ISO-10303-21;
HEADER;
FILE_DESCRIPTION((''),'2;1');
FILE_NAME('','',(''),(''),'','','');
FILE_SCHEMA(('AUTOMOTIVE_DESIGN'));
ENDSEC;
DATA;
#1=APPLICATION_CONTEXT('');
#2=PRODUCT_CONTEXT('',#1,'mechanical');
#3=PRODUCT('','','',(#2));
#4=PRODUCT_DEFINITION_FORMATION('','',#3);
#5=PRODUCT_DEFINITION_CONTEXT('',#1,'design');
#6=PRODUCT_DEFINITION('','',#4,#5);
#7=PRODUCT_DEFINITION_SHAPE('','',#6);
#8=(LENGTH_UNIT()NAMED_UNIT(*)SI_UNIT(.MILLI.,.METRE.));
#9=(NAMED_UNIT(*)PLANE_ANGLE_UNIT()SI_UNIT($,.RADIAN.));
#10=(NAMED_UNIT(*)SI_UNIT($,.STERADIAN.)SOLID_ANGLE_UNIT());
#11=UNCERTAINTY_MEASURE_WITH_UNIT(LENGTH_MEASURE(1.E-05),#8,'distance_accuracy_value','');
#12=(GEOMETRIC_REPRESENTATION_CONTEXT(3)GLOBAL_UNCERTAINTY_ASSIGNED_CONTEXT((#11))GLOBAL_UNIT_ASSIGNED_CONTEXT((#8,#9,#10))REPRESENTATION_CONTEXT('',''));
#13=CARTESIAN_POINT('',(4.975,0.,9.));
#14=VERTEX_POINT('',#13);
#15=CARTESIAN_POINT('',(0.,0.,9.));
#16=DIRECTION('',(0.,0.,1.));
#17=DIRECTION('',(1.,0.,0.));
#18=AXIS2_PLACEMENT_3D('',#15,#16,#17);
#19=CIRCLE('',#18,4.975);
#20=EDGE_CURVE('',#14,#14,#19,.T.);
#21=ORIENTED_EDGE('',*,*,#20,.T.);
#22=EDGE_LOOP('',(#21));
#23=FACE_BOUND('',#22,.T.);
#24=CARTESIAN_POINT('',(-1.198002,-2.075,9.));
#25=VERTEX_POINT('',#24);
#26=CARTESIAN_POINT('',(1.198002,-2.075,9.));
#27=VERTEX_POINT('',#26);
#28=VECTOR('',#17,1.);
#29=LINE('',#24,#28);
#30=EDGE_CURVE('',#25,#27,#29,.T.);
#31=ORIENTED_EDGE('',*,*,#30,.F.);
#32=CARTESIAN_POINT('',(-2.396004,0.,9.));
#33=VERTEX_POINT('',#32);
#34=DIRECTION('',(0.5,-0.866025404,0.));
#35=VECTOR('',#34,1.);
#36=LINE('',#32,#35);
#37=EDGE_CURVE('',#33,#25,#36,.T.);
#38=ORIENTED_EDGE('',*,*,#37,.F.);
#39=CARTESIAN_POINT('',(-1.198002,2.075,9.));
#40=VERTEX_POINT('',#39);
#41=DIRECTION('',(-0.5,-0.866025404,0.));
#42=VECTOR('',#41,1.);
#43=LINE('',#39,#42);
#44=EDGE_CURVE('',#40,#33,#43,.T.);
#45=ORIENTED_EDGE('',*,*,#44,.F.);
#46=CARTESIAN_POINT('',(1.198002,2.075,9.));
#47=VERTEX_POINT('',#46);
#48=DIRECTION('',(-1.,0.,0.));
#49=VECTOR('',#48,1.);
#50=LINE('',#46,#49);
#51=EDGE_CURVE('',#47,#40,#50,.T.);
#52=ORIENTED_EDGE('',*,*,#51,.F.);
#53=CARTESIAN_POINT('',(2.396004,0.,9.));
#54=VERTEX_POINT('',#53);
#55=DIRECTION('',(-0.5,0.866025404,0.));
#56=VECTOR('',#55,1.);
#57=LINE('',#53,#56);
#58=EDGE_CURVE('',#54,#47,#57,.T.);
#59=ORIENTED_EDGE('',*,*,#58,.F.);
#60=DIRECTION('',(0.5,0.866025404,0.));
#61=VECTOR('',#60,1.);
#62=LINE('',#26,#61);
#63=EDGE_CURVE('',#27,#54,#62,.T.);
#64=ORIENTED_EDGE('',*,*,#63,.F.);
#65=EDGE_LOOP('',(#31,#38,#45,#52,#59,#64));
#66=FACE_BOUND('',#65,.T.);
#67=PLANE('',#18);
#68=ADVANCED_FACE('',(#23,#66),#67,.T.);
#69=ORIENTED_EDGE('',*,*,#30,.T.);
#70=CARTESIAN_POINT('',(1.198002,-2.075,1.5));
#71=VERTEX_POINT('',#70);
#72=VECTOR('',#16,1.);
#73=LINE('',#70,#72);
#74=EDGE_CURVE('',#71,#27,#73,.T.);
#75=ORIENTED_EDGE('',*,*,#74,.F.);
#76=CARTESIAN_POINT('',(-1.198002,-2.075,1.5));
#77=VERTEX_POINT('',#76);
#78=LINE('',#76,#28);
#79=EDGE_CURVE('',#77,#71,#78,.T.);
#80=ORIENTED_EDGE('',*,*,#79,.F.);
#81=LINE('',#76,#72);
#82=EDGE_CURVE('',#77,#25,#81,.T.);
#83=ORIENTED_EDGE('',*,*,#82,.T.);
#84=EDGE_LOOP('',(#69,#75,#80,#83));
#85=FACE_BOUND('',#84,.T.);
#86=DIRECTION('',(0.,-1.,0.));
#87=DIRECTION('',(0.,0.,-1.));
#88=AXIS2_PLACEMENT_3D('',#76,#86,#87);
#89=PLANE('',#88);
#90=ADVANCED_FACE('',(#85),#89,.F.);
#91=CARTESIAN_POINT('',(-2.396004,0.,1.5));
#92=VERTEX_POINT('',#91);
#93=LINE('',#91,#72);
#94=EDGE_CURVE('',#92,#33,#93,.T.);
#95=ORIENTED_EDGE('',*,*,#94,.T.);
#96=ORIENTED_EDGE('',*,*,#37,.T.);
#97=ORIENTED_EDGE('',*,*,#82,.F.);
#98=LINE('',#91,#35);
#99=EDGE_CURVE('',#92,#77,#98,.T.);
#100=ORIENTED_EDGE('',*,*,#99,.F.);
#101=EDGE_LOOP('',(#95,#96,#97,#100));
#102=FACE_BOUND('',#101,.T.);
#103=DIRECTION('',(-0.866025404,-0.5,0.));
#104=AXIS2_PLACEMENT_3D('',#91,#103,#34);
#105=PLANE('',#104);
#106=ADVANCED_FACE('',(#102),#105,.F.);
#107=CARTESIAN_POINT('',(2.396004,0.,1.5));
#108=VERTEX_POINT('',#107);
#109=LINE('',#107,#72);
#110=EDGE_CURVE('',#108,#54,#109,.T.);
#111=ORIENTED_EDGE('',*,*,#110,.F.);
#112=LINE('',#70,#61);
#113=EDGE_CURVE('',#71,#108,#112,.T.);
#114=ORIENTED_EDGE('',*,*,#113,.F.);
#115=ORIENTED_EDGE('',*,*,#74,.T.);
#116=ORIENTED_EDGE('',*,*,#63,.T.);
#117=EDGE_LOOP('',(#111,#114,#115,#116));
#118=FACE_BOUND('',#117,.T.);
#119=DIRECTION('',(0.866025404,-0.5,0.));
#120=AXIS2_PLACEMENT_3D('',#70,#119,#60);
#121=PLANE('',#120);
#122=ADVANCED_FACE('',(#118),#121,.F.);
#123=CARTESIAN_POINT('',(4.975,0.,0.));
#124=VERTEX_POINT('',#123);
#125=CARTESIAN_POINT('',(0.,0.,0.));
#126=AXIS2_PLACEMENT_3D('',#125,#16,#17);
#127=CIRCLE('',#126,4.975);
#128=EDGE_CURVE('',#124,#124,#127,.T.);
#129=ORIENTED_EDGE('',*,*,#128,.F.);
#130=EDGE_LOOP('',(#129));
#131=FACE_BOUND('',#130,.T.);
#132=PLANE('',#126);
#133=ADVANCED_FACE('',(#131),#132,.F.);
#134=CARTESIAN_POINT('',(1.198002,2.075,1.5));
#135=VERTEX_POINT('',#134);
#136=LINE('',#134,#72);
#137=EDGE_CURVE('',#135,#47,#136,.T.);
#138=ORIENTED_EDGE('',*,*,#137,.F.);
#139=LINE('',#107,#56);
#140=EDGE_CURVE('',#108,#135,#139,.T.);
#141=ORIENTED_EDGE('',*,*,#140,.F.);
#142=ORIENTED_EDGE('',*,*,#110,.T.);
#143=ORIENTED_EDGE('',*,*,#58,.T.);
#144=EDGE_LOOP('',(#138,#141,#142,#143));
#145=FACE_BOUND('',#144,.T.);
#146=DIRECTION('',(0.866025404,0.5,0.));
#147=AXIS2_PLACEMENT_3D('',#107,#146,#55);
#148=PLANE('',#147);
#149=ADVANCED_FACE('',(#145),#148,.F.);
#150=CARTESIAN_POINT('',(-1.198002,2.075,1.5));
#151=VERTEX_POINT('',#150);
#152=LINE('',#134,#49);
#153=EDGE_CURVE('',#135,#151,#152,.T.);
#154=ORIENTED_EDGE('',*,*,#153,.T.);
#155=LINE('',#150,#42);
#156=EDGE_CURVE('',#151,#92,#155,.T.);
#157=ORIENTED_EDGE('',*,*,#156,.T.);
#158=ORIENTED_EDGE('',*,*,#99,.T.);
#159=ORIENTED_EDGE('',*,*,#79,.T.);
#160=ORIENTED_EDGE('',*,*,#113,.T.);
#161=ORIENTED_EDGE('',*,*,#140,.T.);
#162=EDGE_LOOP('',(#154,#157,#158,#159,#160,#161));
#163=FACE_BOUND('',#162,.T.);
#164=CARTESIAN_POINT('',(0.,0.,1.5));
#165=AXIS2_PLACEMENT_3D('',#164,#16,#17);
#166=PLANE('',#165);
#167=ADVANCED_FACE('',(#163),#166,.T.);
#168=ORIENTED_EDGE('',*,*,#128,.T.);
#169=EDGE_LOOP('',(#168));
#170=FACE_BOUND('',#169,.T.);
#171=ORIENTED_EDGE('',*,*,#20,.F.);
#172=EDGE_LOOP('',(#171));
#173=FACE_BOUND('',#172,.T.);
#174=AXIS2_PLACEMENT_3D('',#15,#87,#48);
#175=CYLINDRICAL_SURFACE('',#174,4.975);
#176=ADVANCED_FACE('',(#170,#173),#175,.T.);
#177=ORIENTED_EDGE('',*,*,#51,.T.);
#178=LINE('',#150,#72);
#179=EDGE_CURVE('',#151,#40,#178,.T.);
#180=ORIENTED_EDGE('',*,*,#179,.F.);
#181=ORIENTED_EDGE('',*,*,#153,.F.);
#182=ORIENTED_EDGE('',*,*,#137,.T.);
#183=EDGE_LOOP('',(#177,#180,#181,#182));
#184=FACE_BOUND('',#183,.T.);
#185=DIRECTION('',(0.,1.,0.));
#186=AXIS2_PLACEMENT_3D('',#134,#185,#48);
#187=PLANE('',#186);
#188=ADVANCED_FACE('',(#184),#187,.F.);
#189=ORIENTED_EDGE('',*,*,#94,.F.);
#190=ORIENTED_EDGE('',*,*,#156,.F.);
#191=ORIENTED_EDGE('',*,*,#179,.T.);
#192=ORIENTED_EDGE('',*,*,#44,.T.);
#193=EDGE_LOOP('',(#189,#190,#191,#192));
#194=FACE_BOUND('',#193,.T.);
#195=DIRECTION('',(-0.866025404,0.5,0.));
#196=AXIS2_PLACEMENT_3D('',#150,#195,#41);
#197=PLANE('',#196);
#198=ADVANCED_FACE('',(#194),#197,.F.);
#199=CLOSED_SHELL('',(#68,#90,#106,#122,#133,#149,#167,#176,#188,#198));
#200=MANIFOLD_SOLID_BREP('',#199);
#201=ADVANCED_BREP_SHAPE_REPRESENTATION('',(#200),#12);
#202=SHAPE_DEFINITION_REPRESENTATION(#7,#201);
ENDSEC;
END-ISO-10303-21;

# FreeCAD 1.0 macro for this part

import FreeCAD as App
import Part
import Sketcher

V = App.Vector
Q = App.Units.Quantity


def add_polygon(sketch, points):
    """Adds a closed chain of lines whose ends are joined by coincident constraints."""
    first, n = sketch.GeometryCount, len(points)
    for a, b in zip(points, points[1:] + points[:1]):
        sketch.addGeometry(Part.LineSegment(App.Vector(*a, 0), App.Vector(*b, 0)), False)
    for i in range(n):
        sketch.addConstraint(Sketcher.Constraint("Coincident", first + i, 2, first + (i + 1) % n, 1))

doc = App.newDocument("Part")
body = doc.addObject("PartDesign::Body", "Body")

# Sketch on XY plane
sketch1 = body.newObject("Sketcher::SketchObject", "Sketch")
sketch1.AttachmentSupport = (doc.getObject("XY_Plane"), [""])
sketch1.MapMode = "FlatFace"
sketch1.addGeometry(Part.Circle(V(0, 0, 0), V(0, 0, 1), 5), False)
sketch1.addConstraint([
    Sketcher.Constraint("Coincident", 0, 3, -1, 1),
    Sketcher.Constraint("Diameter", 0, 9.95),
])
pad1 = body.newObject("PartDesign::Pad", "Pad")
pad1.Profile = sketch1
pad1.Length = 9

# Sketch on XY plane
sketch2 = body.newObject("Sketcher::SketchObject", "Sketch001")
sketch2.AttachmentSupport = (doc.getObject("XY_Plane"), [""])
sketch2.MapMode = "FlatFace"
sketch2.AttachmentOffset = App.Placement(V(0, 0, 9), App.Rotation())
add_polygon(sketch2, [(2.4, 0), (1.2, 2.1), (-1.2, 2.1), (-2.4, 0), (-1.2, -2.1), (1.2, -2.1)])  # lines 0-5
sketch2.addConstraint([
    Sketcher.Constraint("Horizontal", 1),
    Sketcher.Constraint("Horizontal", 4),
    Sketcher.Constraint("Symmetric", 0, 2, 3, 2, -1, 1),
    Sketcher.Constraint("Symmetric", 2, 2, 5, 2, -1, 1),
    Sketcher.Constraint("PointOnObject", 2, 2, -1),
    Sketcher.Constraint("Parallel", 2, 5),
    Sketcher.Constraint("Vertical", 1, 2, 3, 2),
    Sketcher.Constraint("Angle", 0, Q("120 deg")),
    Sketcher.Constraint("DistanceY", 3, 2, 1, 2, 4.15),
    Sketcher.Constraint("DistanceX", -1, 1, 0, 2, 1.198002),
])
pocket1 = body.newObject("PartDesign::Pocket", "Pocket")
pocket1.Profile = sketch2
pocket1.Length = 7.5

doc.recompute()
